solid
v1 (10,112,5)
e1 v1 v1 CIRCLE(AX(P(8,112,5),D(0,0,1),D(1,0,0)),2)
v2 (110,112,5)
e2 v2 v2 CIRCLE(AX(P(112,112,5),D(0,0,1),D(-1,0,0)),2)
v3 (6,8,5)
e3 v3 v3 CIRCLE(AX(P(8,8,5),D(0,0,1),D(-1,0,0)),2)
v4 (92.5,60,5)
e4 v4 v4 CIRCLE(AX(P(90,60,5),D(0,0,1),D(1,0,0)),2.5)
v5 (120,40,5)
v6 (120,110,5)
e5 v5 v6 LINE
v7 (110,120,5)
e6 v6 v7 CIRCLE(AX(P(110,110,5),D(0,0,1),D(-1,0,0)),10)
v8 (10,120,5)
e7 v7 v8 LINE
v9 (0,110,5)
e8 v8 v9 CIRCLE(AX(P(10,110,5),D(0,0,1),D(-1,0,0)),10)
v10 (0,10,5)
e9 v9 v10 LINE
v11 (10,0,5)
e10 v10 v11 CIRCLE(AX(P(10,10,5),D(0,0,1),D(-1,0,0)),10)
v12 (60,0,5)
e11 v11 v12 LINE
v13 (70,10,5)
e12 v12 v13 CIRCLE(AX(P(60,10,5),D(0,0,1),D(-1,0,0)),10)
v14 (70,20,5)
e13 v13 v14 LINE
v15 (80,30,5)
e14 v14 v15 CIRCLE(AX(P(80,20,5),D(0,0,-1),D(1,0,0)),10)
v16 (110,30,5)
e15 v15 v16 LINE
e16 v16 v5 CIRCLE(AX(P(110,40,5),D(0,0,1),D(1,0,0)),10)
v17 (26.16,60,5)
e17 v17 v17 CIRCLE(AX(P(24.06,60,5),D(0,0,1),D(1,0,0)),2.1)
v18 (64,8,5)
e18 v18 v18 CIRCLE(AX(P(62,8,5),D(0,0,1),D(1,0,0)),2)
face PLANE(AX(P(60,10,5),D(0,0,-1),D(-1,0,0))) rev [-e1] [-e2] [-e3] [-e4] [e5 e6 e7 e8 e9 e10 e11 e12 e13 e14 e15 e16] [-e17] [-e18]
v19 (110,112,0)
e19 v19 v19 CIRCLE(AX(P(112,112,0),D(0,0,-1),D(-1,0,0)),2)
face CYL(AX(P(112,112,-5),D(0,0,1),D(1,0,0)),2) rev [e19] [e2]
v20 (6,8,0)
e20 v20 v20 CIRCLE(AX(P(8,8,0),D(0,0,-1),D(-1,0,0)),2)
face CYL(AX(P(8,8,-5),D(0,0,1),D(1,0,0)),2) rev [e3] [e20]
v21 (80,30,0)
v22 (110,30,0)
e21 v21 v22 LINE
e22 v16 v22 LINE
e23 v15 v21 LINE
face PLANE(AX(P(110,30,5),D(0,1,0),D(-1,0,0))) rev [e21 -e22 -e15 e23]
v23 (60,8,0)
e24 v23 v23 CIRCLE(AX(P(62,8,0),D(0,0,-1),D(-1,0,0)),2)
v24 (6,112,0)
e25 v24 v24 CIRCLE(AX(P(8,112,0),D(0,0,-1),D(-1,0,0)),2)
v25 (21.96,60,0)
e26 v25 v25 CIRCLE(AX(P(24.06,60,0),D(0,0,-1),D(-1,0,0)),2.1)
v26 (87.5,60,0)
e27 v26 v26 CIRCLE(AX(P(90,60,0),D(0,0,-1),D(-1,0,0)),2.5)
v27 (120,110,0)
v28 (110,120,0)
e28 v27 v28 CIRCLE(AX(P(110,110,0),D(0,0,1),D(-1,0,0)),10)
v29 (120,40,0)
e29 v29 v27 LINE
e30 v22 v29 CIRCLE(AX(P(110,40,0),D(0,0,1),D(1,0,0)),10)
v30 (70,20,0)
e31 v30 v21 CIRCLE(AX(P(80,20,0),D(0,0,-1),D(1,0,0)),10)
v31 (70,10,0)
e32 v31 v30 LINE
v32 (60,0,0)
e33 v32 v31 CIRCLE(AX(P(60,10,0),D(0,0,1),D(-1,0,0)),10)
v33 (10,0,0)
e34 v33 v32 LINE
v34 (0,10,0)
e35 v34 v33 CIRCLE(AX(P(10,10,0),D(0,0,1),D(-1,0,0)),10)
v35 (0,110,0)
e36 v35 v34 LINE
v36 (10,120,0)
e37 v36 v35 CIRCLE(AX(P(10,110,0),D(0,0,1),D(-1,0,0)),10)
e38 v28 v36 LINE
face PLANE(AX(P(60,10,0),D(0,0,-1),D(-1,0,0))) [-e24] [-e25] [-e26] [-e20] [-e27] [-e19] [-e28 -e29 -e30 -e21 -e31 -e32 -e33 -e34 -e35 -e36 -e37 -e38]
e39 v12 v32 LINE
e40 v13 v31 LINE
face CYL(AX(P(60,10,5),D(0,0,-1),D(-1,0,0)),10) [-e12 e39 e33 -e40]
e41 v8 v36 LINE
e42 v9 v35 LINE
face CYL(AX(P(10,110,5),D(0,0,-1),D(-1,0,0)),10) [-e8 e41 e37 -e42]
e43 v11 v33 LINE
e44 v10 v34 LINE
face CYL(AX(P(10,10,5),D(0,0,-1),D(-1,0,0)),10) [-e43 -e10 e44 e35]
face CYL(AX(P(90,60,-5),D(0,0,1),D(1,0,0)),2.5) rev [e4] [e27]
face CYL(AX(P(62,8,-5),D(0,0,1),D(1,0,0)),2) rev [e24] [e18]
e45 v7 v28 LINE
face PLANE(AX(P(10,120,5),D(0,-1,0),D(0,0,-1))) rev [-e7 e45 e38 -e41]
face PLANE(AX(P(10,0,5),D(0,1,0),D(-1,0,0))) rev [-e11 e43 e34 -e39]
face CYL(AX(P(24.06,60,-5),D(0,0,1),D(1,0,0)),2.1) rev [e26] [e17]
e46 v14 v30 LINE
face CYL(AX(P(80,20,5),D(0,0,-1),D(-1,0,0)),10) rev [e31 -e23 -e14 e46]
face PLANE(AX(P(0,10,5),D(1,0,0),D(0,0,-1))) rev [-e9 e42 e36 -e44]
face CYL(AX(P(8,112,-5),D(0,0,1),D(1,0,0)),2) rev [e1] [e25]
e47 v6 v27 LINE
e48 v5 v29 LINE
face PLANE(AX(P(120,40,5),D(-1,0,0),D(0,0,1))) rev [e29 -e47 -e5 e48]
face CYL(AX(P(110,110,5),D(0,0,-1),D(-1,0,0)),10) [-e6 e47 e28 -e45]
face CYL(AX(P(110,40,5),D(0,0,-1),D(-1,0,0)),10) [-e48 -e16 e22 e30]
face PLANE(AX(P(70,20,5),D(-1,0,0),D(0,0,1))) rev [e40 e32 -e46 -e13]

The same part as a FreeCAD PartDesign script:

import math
import FreeCAD as App
import Part
import Sketcher

V = App.Vector

doc = App.newDocument("Part")
body = doc.addObject("PartDesign::Body", "Body")

# Sketch on XY plane
sketch1 = doc.addObject("Sketcher::SketchObject", "Sketch")
body.addObject(sketch1)
sketch1.AttachmentSupport = (doc.XY_Plane, [""])
sketch1.MapMode = "FlatFace"
sketch1.addGeometry([
    Part.LineSegment(V(80, 30, 0), V(110, 30, 0)),  # 0
    Part.ArcOfCircle(Part.Circle(V(110, 40, 0), V(0, 0, 1), 10), math.radians(-90), math.radians(0)),  # 1
    Part.LineSegment(V(120, 40, 0), V(120, 110, 0)),  # 2
    Part.ArcOfCircle(Part.Circle(V(110, 110, 0), V(0, 0, 1), 10), math.radians(0), math.radians(90)),  # 3
    Part.LineSegment(V(110, 120, 0), V(10, 120, 0)),  # 4
    Part.ArcOfCircle(Part.Circle(V(10, 110, 0), V(0, 0, 1), 10), math.radians(90), math.radians(180)),  # 5
    Part.LineSegment(V(0, 110, 0), V(0, 10, 0)),  # 6
    Part.ArcOfCircle(Part.Circle(V(10, 10, 0), V(0, 0, 1), 10), math.radians(180), math.radians(270)),  # 7
    Part.LineSegment(V(10, 0, 0), V(60, 0, 0)),  # 8
    Part.ArcOfCircle(Part.Circle(V(60, 10, 0), V(0, 0, 1), 10), math.radians(-90), math.radians(0)),  # 9
    Part.LineSegment(V(70, 10, 0), V(70, 20, 0)),  # 10
    Part.ArcOfCircle(Part.Circle(V(80, 20, 0), V(0, 0, 1), 10), math.radians(90), math.radians(180)),  # 11
], False)
sketch1.addConstraint([
    Sketcher.Constraint("Tangent", 0, 2, 1, 1),
    Sketcher.Constraint("Tangent", 1, 2, 2, 1),
    Sketcher.Constraint("Tangent", 2, 2, 3, 1),
    Sketcher.Constraint("Tangent", 3, 2, 4, 1),
    Sketcher.Constraint("Tangent", 4, 2, 5, 1),
    Sketcher.Constraint("Tangent", 5, 2, 6, 1),
    Sketcher.Constraint("Tangent", 6, 2, 7, 1),
    Sketcher.Constraint("Tangent", 7, 2, 8, 1),
    Sketcher.Constraint("Tangent", 8, 2, 9, 1),
    Sketcher.Constraint("Tangent", 9, 2, 10, 1),
    Sketcher.Constraint("Tangent", 10, 2, 11, 2),
    Sketcher.Constraint("Tangent", 11, 1, 0, 1),
    Sketcher.Constraint("Horizontal", 0),
    Sketcher.Constraint("Vertical", 2),
    Sketcher.Constraint("Horizontal", 4),
    Sketcher.Constraint("Vertical", 6),
    Sketcher.Constraint("Horizontal", 8),
    Sketcher.Constraint("Vertical", 10),
    Sketcher.Constraint("Equal", 1, 3),
    Sketcher.Constraint("Equal", 3, 5),
    Sketcher.Constraint("Equal", 5, 7),
    Sketcher.Constraint("Equal", 7, 9),
    Sketcher.Constraint("Equal", 9, 11),
    Sketcher.Constraint("PointOnObject", 5, 2, -2),
    Sketcher.Constraint("PointOnObject", 7, 2, -1),
    Sketcher.Constraint("Equal", 4, 6),
    Sketcher.Constraint("Radius", 1, 10.0),
    Sketcher.Constraint("DistanceX", 0, 1, 0, 2, 30.0),
    Sketcher.Constraint("DistanceX", 4, 2, 4, 1, 100.0),
    Sketcher.Constraint("DistanceY", 2, 1, 2, 2, 70.0),
])
pad1 = doc.addObject("PartDesign::Pad", "Pad")
body.addObject(pad1)
pad1.Profile = sketch1
pad1.Length = 5

# Sketch on XY plane
sketch2 = doc.addObject("Sketcher::SketchObject", "Sketch001")
body.addObject(sketch2)
sketch2.AttachmentSupport = (doc.XY_Plane, [""])
sketch2.MapMode = "FlatFace"
sketch2.AttachmentOffset = App.Placement(V(0, 0, 5), App.Rotation())
sketch2.addGeometry([
    Part.Circle(V(8, 112, 0), V(0, 0, 1), 2),  # 0
    Part.Circle(V(8, 8, 0), V(0, 0, 1), 2),  # 1
    Part.Circle(V(112, 8, 0), V(0, 0, 1), 2),  # 2
    Part.Circle(V(112, 112, 0), V(0, 0, 1), 2),  # 3
    Part.Circle(V(90, 60, 0), V(0, 0, 1), 2.5),  # 4
    Part.Circle(V(62, 8, 0), V(0, 0, 1), 2),  # 5
    Part.Circle(V(24.1, 60, 0), V(0, 0, 1), 2.1),  # 6
], False)
sketch2.addConstraint([
    Sketcher.Constraint("Equal", 0, 1),
    Sketcher.Constraint("Equal", 1, 2),
    Sketcher.Constraint("Equal", 2, 3),
    Sketcher.Constraint("Equal", 3, 5),
    Sketcher.Constraint("Horizontal", 1, 3, 2, 3),
    Sketcher.Constraint("Horizontal", 0, 3, 3, 3),
    Sketcher.Constraint("Horizontal", 2, 3, 5, 3),
    Sketcher.Constraint("Horizontal", 4, 3, 6, 3),
    Sketcher.Constraint("Vertical", 0, 3, 1, 3),
    Sketcher.Constraint("Vertical", 2, 3, 3, 3),
    Sketcher.Constraint("Diameter", 0, 4.0),
    Sketcher.Constraint("Diameter", 4, 5.0),
    Sketcher.Constraint("Diameter", 6, 4.2),
    Sketcher.Constraint("DistanceX", -1, 1, 0, 3, 8.0),
    Sketcher.Constraint("DistanceY", -1, 1, 0, 3, 112.0),
    Sketcher.Constraint("DistanceY", -1, 1, 1, 3, 8.0),
    Sketcher.Constraint("DistanceX", -1, 1, 2, 3, 112.0),
    Sketcher.Constraint("DistanceX", -1, 1, 4, 3, 90.0),
    Sketcher.Constraint("DistanceY", -1, 1, 4, 3, 60.0),
    Sketcher.Constraint("DistanceX", -1, 1, 5, 3, 62.0),
    Sketcher.Constraint("DistanceX", -1, 1, 6, 3, 24.06),
])
pocket1 = doc.addObject("PartDesign::Pocket", "Pocket")
body.addObject(pocket1)
pocket1.Profile = sketch2
pocket1.Length = 10

doc.recompute()
